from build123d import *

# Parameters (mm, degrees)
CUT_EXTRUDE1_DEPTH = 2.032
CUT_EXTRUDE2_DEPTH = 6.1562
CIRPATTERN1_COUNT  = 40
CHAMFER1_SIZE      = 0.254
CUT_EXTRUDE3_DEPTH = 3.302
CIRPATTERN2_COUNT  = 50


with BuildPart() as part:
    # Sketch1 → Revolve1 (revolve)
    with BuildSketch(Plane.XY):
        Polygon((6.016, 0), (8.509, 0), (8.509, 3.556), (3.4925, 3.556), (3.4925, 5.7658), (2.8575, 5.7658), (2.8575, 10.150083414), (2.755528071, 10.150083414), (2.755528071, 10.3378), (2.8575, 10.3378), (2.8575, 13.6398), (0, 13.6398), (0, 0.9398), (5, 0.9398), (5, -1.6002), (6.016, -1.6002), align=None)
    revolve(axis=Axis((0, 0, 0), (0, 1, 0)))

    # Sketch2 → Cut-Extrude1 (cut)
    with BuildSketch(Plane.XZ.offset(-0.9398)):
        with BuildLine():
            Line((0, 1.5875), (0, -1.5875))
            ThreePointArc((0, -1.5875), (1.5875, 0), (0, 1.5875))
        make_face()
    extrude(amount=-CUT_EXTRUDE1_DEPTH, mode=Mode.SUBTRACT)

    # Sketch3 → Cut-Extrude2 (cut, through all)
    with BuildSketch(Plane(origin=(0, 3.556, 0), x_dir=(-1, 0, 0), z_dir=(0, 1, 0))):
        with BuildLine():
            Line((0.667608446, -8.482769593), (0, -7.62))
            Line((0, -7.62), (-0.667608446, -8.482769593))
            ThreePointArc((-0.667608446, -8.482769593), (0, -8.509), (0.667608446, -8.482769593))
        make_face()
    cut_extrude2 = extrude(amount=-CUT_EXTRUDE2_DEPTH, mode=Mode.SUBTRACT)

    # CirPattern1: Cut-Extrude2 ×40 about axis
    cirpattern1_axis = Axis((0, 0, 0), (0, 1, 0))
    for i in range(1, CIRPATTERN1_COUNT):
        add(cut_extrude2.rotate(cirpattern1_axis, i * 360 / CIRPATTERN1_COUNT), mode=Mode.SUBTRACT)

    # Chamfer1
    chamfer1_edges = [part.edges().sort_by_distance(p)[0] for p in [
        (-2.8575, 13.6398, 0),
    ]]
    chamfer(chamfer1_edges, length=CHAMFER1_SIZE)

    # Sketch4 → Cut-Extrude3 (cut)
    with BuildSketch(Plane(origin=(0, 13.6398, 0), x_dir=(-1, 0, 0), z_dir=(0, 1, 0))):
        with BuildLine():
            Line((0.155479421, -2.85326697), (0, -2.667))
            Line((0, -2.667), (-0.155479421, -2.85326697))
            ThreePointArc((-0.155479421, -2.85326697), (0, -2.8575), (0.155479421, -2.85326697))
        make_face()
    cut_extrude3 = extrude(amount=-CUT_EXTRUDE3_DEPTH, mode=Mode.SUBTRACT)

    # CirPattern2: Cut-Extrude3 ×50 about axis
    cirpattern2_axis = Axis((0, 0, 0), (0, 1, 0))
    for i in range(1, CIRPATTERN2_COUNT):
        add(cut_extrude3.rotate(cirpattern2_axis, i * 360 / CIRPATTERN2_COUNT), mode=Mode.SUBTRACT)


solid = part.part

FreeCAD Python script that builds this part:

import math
import FreeCAD as App
import Part
import Sketcher

V = App.Vector
Q = App.Units.Quantity


def edges_at(feature, points):
    """Names of the edges that pass closest to the given points."""
    edges = feature.Shape.Edges
    near = lambda p: min(range(len(edges)), key=lambda i: edges[i].distToShape(Part.Vertex(*p))[0])
    return sorted({f"Edge{near(p) + 1}" for p in points})

doc = App.newDocument("Part")
body = doc.addObject("PartDesign::Body", "Body")

sketch1 = body.newObject("Sketcher::SketchObject", "Sketch")
sketch1.AttachmentSupport = (doc.getObject("XY_Plane"), [""])
sketch1.MapMode = "FlatFace"
sketch1.addGeometry([
    Part.LineSegment(V(6.02, 0, 0), V(8.51, 0, 0)),
    Part.LineSegment(V(8.51, 0, 0), V(8.51, 3.56, 0)),
    Part.LineSegment(V(8.51, 3.56, 0), V(3.49, 3.56, 0)),
    Part.LineSegment(V(3.49, 3.56, 0), V(3.49, 5.77, 0)),
    Part.LineSegment(V(3.49, 5.77, 0), V(2.86, 5.77, 0)),
    Part.LineSegment(V(2.86, 5.77, 0), V(2.86, 10.15, 0)),
    Part.LineSegment(V(2.86, 10.15, 0), V(2.76, 10.15, 0)),
    Part.LineSegment(V(2.76, 10.15, 0), V(2.76, 10.34, 0)),
    Part.LineSegment(V(2.76, 10.34, 0), V(2.86, 10.34, 0)),
    Part.LineSegment(V(2.86, 10.34, 0), V(2.86, 13.64, 0)),
    Part.LineSegment(V(2.86, 13.64, 0), V(0, 13.64, 0)),
    Part.LineSegment(V(0, 13.64, 0), V(0, 0.94, 0)),
    Part.LineSegment(V(0, 0.94, 0), V(5, 0.94, 0)),
    Part.LineSegment(V(5, 0.94, 0), V(5, -1.6, 0)),
    Part.LineSegment(V(5, -1.6, 0), V(6.02, -1.6, 0)),
    Part.LineSegment(V(6.02, -1.6, 0), V(6.02, 0, 0)),
], False)
sketch1.addConstraint([
    Sketcher.Constraint("Coincident", 0, 2, 1, 1),
    Sketcher.Constraint("Coincident", 1, 2, 2, 1),
    Sketcher.Constraint("Coincident", 2, 2, 3, 1),
    Sketcher.Constraint("Coincident", 3, 2, 4, 1),
    Sketcher.Constraint("Coincident", 4, 2, 5, 1),
    Sketcher.Constraint("Coincident", 5, 2, 6, 1),
    Sketcher.Constraint("Coincident", 6, 2, 7, 1),
    Sketcher.Constraint("Coincident", 7, 2, 8, 1),
    Sketcher.Constraint("Coincident", 8, 2, 9, 1),
    Sketcher.Constraint("Coincident", 9, 2, 10, 1),
    Sketcher.Constraint("Coincident", 10, 2, 11, 1),
    Sketcher.Constraint("Coincident", 11, 2, 12, 1),
    Sketcher.Constraint("Coincident", 12, 2, 13, 1),
    Sketcher.Constraint("Coincident", 13, 2, 14, 1),
    Sketcher.Constraint("Coincident", 14, 2, 15, 1),
    Sketcher.Constraint("Coincident", 15, 2, 0, 1),
    Sketcher.Constraint("Horizontal", 0),
    Sketcher.Constraint("Vertical", 1),
    Sketcher.Constraint("Horizontal", 2),
    Sketcher.Constraint("Vertical", 3),
    Sketcher.Constraint("Horizontal", 4),
    Sketcher.Constraint("Vertical", 5),
    Sketcher.Constraint("Horizontal", 6),
    Sketcher.Constraint("Vertical", 7),
    Sketcher.Constraint("Horizontal", 8),
    Sketcher.Constraint("Vertical", 9),
    Sketcher.Constraint("Horizontal", 10),
    Sketcher.Constraint("Vertical", 11),
    Sketcher.Constraint("Horizontal", 12),
    Sketcher.Constraint("Vertical", 13),
    Sketcher.Constraint("Horizontal", 14),
    Sketcher.Constraint("Vertical", 15),
    Sketcher.Constraint("PointOnObject", 0, 2, -1),
    Sketcher.Constraint("PointOnObject", 10, 2, -2),
    Sketcher.Constraint("Vertical", 5, 2, 8, 2),
    Sketcher.Constraint("DistanceY", 11, 2, 11, 1, Q("0.5 in")),
    Sketcher.Constraint("DistanceY", 13, 2, 13, 1, Q("0.1 in")),
    Sketcher.Constraint("DistanceX", 14, 1, 14, 2, Q("0.04 in")),
    Sketcher.Constraint("DistanceY", 1, 1, 1, 2, Q("0.14 in")),
    Sketcher.Constraint("DistanceY", 9, 1, 9, 2, Q("0.13 in")),
    Sketcher.Constraint("DistanceX", 4, 2, 4, 1, Q("0.025 in")),
    Sketcher.Constraint("DistanceY", 3, 1, 3, 2, Q("0.087 in")),
    Sketcher.Constraint("DistanceY", 15, 1, 15, 2, Q("0.063 in")),
    Sketcher.Constraint("DistanceX", 2, 2, 2, 1, Q("0.1975 in")),
    Sketcher.Constraint("DistanceX", 10, 2, 10, 1, Q("0.1125 in")),
    Sketcher.Constraint("DistanceX", 0, 1, 0, 2, 2.493),
    Sketcher.Constraint("DistanceX", 6, 2, 6, 1, 0.101972),
    Sketcher.Constraint("DistanceY", 5, 1, 5, 2, 4.384283),
])
revolution = body.newObject("PartDesign::Revolution", "Revolution")
revolution.Profile = sketch1
revolution.ReferenceAxis = (sketch1, ["V_Axis"])
revolution.Angle = 360

sketch2 = body.newObject("Sketcher::SketchObject", "Sketch001")
sketch2.AttachmentSupport = (doc.getObject("XZ_Plane"), [""])
sketch2.MapMode = "FlatFace"
sketch2.AttachmentOffset = App.Placement(V(0, 0, -0.037 * 25.4), App.Rotation())
sketch2.addGeometry([
    Part.LineSegment(V(0, 1.6, 0), V(0, -1.6, 0)),
    Part.ArcOfCircle(Part.Circle(V(0, 0, 0), V(0, 0, 1), 1.6), math.radians(-90), math.radians(90)),
], False)
sketch2.addConstraint([
    Sketcher.Constraint("Coincident", 0, 1, 1, 2),
    Sketcher.Constraint("Coincident", 1, 1, 0, 2),
    Sketcher.Constraint("Vertical", 0),
    Sketcher.Constraint("Coincident", 1, 3, -1, 1),
    Sketcher.Constraint("PointOnObject", 0, 1, -2),
    Sketcher.Constraint("Radius", 1, Q("0.0625 in")),
])
pocket1 = body.newObject("PartDesign::Pocket", "Pocket")
pocket1.Profile = sketch2
pocket1.Length = Q("0.08 in")

sketch3 = body.newObject("Sketcher::SketchObject", "Sketch002")
sketch3.AttachmentSupport = (doc.getObject("XZ_Plane"), [""])
sketch3.MapMode = "FlatFace"
sketch3.AttachmentOffset = App.Placement(V(0, 0, -0.14 * 25.4), App.Rotation())
sketch3.addGeometry([
    Part.LineSegment(V(-0.7, -8.5, 0), V(0, -7.6, 0)),
    Part.LineSegment(V(0, -7.6, 0), V(0.7, -8.5, 0)),
    Part.ArcOfCircle(Part.Circle(V(0, 0, 0), V(0, 0, 1), 8.5), math.radians(-94.5), math.radians(-85.5)),
], False)
sketch3.addConstraint([
    Sketcher.Constraint("Coincident", 0, 2, 1, 1),
    Sketcher.Constraint("Coincident", 1, 2, 2, 2),
    Sketcher.Constraint("Coincident", 2, 1, 0, 1),
    Sketcher.Constraint("Coincident", 2, 3, -1, 1),
    Sketcher.Constraint("PointOnObject", 0, 2, -2),
    Sketcher.Constraint("Horizontal", 1, 2, 2, 1),
    Sketcher.Constraint("Radius", 2, Q("0.335 in")),
    Sketcher.Constraint("DistanceY", 0, 2, -1, 1, Q("0.3 in")),
    Sketcher.Constraint("DistanceX", -1, 1, 1, 2, 0.667608),
])
pocket2 = body.newObject("PartDesign::Pocket", "Pocket001")
pocket2.Profile = sketch3
pocket2.Type = "ThroughAll"
pocket2.Reversed = True
doc.recompute()

polarpattern = body.newObject("PartDesign::PolarPattern", "PolarPattern")
polarpattern.Originals = [pocket2]
polarpattern.Axis = (doc.getObject("Y_Axis"), [""])
polarpattern.Angle = 360
polarpattern.Occurrences = 40
body.Tip = polarpattern
doc.recompute()

chamfer = body.newObject("PartDesign::Chamfer", "Chamfer")
chamfer.Base = (polarpattern, edges_at(polarpattern, [(-2.857, 13.64, 0)]))
chamfer.Size = Q("0.01 in")

sketch4 = body.newObject("Sketcher::SketchObject", "Sketch003")
sketch4.AttachmentSupport = (doc.getObject("XZ_Plane"), [""])
sketch4.MapMode = "FlatFace"
sketch4.AttachmentOffset = App.Placement(V(0, 0, -0.537 * 25.4), App.Rotation())
sketch4.addGeometry([
    Part.LineSegment(V(-0.16, -2.85, 0), V(0, -2.67, 0)),
    Part.LineSegment(V(0, -2.67, 0), V(0.16, -2.85, 0)),
    Part.ArcOfCircle(Part.Circle(V(0, 0, 0), V(0, 0, 1), 2.86), math.radians(-93.12), math.radians(-86.88)),
], False)
sketch4.addConstraint([
    Sketcher.Constraint("Coincident", 0, 2, 1, 1),
    Sketcher.Constraint("Coincident", 1, 2, 2, 2),
    Sketcher.Constraint("Coincident", 2, 1, 0, 1),
    Sketcher.Constraint("Coincident", 2, 3, -1, 1),
    Sketcher.Constraint("PointOnObject", 0, 2, -2),
    Sketcher.Constraint("Horizontal", 1, 2, 2, 1),
    Sketcher.Constraint("Radius", 2, Q("0.1125 in")),
    Sketcher.Constraint("DistanceY", 0, 2, -1, 1, Q("0.105 in")),
    Sketcher.Constraint("Distance", 0, 0.24263),
])
pocket3 = body.newObject("PartDesign::Pocket", "Pocket002")
pocket3.Profile = sketch4
pocket3.Length = Q("0.13 in")
pocket3.Reversed = True
doc.recompute()

polarpattern2 = body.newObject("PartDesign::PolarPattern", "PolarPattern001")
polarpattern2.Originals = [pocket3]
polarpattern2.Axis = (doc.getObject("Y_Axis"), [""])
polarpattern2.Angle = 360
polarpattern2.Occurrences = 50
body.Tip = polarpattern2

doc.recompute()
